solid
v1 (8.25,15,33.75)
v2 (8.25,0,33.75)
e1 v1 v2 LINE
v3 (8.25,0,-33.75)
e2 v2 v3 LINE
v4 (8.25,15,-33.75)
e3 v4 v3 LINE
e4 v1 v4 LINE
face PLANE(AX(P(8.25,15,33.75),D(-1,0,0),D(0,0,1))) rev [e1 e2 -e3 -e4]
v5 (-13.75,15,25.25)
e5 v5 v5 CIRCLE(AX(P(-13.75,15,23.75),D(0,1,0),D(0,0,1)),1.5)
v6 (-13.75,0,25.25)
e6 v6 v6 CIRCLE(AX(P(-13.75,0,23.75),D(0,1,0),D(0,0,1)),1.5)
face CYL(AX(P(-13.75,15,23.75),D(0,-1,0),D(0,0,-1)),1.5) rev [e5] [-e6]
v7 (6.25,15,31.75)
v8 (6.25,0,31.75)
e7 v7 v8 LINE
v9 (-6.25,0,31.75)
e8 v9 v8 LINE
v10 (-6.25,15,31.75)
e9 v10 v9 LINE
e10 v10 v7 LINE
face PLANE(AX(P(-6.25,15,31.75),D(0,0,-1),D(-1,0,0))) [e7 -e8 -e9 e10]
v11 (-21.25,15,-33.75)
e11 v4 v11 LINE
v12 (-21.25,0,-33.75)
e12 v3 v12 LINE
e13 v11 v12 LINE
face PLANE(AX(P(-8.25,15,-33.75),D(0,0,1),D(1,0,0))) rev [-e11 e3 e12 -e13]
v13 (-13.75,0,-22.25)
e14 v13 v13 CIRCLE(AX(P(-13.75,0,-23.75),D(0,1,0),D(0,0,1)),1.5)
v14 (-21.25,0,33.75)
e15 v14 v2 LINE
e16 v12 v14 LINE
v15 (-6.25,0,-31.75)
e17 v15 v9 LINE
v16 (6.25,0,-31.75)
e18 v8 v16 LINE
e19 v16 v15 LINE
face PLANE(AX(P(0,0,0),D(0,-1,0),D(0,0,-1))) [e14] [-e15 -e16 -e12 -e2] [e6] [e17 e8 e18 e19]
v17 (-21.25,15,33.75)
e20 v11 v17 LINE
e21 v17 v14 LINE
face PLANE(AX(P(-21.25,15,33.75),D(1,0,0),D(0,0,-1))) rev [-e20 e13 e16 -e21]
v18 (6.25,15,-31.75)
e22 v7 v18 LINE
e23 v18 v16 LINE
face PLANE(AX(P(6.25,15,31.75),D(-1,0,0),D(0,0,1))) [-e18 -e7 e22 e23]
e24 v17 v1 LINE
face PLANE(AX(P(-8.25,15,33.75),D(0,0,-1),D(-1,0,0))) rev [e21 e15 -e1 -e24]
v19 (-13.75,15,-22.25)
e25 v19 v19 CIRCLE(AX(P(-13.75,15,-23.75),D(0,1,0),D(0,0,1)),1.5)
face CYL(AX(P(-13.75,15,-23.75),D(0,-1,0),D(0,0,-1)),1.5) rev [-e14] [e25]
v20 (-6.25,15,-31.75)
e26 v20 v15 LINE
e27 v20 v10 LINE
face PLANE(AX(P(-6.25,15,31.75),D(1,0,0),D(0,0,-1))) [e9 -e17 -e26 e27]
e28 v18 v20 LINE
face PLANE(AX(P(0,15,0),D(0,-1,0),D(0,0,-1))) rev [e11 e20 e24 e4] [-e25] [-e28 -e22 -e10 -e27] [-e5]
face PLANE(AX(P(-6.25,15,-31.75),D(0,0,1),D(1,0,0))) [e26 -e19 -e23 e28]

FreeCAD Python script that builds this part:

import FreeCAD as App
import Part
import Sketcher
Q = App.Units.Quantity

doc = App.newDocument("Part")
body = doc.addObject("PartDesign::Body", "Body")

sketch1 = doc.addObject("Sketcher::SketchObject", "Sketch")
body.addObject(sketch1)
sketch1.AttachmentSupport = (doc.XZ_Plane, [""])
sketch1.MapMode = "FlatFace"
sketch1.addGeometry(Part.LineSegment(App.Vector(8.2, -33.8, 0), App.Vector(-21.2, -33.8, 0)), False)
sketch1.addGeometry(Part.LineSegment(App.Vector(-21.2, -33.8, 0), App.Vector(-21.2, 33.8, 0)), False)
sketch1.addGeometry(Part.LineSegment(App.Vector(-21.2, 33.8, 0), App.Vector(8.2, 33.8, 0)), False)
sketch1.addGeometry(Part.LineSegment(App.Vector(8.2, 33.8, 0), App.Vector(8.2, -33.8, 0)), False)
sketch1.addGeometry(Part.Circle(App.Vector(-13.8, 23.8, 0), App.Vector(0, 0, 1), 1.5), False)
sketch1.addGeometry(Part.LineSegment(App.Vector(-6.2, 31.8, 0), App.Vector(-6.2, -31.8, 0)), False)
sketch1.addGeometry(Part.LineSegment(App.Vector(-6.2, -31.8, 0), App.Vector(6.2, -31.8, 0)), False)
sketch1.addGeometry(Part.LineSegment(App.Vector(6.2, -31.8, 0), App.Vector(6.2, 31.8, 0)), False)
sketch1.addGeometry(Part.LineSegment(App.Vector(6.2, 31.8, 0), App.Vector(-6.2, 31.8, 0)), False)
sketch1.addGeometry(Part.Circle(App.Vector(-13.8, -23.8, 0), App.Vector(0, 0, 1), 1.5), False)
sketch1.addConstraint(Sketcher.Constraint("Coincident", 0, 2, 1, 1))
sketch1.addConstraint(Sketcher.Constraint("Coincident", 1, 2, 2, 1))
sketch1.addConstraint(Sketcher.Constraint("Coincident", 2, 2, 3, 1))
sketch1.addConstraint(Sketcher.Constraint("Coincident", 3, 2, 0, 1))
sketch1.addConstraint(Sketcher.Constraint("Coincident", 5, 2, 6, 1))
sketch1.addConstraint(Sketcher.Constraint("Coincident", 6, 2, 7, 1))
sketch1.addConstraint(Sketcher.Constraint("Coincident", 7, 2, 8, 1))
sketch1.addConstraint(Sketcher.Constraint("Coincident", 8, 2, 5, 1))
sketch1.addConstraint(Sketcher.Constraint("Horizontal", 0))
sketch1.addConstraint(Sketcher.Constraint("Vertical", 1))
sketch1.addConstraint(Sketcher.Constraint("Horizontal", 2))
sketch1.addConstraint(Sketcher.Constraint("Vertical", 3))
sketch1.addConstraint(Sketcher.Constraint("Vertical", 5))
sketch1.addConstraint(Sketcher.Constraint("Horizontal", 6))
sketch1.addConstraint(Sketcher.Constraint("Vertical", 7))
sketch1.addConstraint(Sketcher.Constraint("Horizontal", 8))
sketch1.addConstraint(Sketcher.Constraint("Equal", 4, 9))
sketch1.addConstraint(Sketcher.Constraint("Symmetric", 5, 2, 7, 2, -1, 1))
sketch1.addConstraint(Sketcher.Constraint("Symmetric", 4, 3, 9, 3, -1))
sketch1.addConstraint(Sketcher.Constraint("Diameter", 4, Q("3 mm")))
sketch1.addConstraint(Sketcher.Constraint("DistanceX", 0, 2, 0, 1, Q("29.5 mm")))
sketch1.addConstraint(Sketcher.Constraint("DistanceX", 6, 1, 6, 2, Q("12.5 mm")))
sketch1.addConstraint(Sketcher.Constraint("DistanceY", 1, 1, 1, 2, Q("67.5 mm")))
sketch1.addConstraint(Sketcher.Constraint("DistanceY", 5, 2, 5, 1, Q("63.5 mm")))
sketch1.addConstraint(Sketcher.Constraint("DistanceY", 0, 2, 9, 3, Q("10 mm")))
sketch1.addConstraint(Sketcher.Constraint("DistanceY", 4, 3, 1, 2, Q("10 mm")))
sketch1.addConstraint(Sketcher.Constraint("DistanceX", 4, 3, 2, 2, Q("22 mm")))
sketch1.addConstraint(Sketcher.Constraint("DistanceX", 0, 2, 5, 2, Q("15 mm")))
pad1 = doc.addObject("PartDesign::Pad", "Pad")
body.addObject(pad1)
pad1.Profile = sketch1
pad1.Length = 15
pad1.Reversed = True

doc.recompute()
